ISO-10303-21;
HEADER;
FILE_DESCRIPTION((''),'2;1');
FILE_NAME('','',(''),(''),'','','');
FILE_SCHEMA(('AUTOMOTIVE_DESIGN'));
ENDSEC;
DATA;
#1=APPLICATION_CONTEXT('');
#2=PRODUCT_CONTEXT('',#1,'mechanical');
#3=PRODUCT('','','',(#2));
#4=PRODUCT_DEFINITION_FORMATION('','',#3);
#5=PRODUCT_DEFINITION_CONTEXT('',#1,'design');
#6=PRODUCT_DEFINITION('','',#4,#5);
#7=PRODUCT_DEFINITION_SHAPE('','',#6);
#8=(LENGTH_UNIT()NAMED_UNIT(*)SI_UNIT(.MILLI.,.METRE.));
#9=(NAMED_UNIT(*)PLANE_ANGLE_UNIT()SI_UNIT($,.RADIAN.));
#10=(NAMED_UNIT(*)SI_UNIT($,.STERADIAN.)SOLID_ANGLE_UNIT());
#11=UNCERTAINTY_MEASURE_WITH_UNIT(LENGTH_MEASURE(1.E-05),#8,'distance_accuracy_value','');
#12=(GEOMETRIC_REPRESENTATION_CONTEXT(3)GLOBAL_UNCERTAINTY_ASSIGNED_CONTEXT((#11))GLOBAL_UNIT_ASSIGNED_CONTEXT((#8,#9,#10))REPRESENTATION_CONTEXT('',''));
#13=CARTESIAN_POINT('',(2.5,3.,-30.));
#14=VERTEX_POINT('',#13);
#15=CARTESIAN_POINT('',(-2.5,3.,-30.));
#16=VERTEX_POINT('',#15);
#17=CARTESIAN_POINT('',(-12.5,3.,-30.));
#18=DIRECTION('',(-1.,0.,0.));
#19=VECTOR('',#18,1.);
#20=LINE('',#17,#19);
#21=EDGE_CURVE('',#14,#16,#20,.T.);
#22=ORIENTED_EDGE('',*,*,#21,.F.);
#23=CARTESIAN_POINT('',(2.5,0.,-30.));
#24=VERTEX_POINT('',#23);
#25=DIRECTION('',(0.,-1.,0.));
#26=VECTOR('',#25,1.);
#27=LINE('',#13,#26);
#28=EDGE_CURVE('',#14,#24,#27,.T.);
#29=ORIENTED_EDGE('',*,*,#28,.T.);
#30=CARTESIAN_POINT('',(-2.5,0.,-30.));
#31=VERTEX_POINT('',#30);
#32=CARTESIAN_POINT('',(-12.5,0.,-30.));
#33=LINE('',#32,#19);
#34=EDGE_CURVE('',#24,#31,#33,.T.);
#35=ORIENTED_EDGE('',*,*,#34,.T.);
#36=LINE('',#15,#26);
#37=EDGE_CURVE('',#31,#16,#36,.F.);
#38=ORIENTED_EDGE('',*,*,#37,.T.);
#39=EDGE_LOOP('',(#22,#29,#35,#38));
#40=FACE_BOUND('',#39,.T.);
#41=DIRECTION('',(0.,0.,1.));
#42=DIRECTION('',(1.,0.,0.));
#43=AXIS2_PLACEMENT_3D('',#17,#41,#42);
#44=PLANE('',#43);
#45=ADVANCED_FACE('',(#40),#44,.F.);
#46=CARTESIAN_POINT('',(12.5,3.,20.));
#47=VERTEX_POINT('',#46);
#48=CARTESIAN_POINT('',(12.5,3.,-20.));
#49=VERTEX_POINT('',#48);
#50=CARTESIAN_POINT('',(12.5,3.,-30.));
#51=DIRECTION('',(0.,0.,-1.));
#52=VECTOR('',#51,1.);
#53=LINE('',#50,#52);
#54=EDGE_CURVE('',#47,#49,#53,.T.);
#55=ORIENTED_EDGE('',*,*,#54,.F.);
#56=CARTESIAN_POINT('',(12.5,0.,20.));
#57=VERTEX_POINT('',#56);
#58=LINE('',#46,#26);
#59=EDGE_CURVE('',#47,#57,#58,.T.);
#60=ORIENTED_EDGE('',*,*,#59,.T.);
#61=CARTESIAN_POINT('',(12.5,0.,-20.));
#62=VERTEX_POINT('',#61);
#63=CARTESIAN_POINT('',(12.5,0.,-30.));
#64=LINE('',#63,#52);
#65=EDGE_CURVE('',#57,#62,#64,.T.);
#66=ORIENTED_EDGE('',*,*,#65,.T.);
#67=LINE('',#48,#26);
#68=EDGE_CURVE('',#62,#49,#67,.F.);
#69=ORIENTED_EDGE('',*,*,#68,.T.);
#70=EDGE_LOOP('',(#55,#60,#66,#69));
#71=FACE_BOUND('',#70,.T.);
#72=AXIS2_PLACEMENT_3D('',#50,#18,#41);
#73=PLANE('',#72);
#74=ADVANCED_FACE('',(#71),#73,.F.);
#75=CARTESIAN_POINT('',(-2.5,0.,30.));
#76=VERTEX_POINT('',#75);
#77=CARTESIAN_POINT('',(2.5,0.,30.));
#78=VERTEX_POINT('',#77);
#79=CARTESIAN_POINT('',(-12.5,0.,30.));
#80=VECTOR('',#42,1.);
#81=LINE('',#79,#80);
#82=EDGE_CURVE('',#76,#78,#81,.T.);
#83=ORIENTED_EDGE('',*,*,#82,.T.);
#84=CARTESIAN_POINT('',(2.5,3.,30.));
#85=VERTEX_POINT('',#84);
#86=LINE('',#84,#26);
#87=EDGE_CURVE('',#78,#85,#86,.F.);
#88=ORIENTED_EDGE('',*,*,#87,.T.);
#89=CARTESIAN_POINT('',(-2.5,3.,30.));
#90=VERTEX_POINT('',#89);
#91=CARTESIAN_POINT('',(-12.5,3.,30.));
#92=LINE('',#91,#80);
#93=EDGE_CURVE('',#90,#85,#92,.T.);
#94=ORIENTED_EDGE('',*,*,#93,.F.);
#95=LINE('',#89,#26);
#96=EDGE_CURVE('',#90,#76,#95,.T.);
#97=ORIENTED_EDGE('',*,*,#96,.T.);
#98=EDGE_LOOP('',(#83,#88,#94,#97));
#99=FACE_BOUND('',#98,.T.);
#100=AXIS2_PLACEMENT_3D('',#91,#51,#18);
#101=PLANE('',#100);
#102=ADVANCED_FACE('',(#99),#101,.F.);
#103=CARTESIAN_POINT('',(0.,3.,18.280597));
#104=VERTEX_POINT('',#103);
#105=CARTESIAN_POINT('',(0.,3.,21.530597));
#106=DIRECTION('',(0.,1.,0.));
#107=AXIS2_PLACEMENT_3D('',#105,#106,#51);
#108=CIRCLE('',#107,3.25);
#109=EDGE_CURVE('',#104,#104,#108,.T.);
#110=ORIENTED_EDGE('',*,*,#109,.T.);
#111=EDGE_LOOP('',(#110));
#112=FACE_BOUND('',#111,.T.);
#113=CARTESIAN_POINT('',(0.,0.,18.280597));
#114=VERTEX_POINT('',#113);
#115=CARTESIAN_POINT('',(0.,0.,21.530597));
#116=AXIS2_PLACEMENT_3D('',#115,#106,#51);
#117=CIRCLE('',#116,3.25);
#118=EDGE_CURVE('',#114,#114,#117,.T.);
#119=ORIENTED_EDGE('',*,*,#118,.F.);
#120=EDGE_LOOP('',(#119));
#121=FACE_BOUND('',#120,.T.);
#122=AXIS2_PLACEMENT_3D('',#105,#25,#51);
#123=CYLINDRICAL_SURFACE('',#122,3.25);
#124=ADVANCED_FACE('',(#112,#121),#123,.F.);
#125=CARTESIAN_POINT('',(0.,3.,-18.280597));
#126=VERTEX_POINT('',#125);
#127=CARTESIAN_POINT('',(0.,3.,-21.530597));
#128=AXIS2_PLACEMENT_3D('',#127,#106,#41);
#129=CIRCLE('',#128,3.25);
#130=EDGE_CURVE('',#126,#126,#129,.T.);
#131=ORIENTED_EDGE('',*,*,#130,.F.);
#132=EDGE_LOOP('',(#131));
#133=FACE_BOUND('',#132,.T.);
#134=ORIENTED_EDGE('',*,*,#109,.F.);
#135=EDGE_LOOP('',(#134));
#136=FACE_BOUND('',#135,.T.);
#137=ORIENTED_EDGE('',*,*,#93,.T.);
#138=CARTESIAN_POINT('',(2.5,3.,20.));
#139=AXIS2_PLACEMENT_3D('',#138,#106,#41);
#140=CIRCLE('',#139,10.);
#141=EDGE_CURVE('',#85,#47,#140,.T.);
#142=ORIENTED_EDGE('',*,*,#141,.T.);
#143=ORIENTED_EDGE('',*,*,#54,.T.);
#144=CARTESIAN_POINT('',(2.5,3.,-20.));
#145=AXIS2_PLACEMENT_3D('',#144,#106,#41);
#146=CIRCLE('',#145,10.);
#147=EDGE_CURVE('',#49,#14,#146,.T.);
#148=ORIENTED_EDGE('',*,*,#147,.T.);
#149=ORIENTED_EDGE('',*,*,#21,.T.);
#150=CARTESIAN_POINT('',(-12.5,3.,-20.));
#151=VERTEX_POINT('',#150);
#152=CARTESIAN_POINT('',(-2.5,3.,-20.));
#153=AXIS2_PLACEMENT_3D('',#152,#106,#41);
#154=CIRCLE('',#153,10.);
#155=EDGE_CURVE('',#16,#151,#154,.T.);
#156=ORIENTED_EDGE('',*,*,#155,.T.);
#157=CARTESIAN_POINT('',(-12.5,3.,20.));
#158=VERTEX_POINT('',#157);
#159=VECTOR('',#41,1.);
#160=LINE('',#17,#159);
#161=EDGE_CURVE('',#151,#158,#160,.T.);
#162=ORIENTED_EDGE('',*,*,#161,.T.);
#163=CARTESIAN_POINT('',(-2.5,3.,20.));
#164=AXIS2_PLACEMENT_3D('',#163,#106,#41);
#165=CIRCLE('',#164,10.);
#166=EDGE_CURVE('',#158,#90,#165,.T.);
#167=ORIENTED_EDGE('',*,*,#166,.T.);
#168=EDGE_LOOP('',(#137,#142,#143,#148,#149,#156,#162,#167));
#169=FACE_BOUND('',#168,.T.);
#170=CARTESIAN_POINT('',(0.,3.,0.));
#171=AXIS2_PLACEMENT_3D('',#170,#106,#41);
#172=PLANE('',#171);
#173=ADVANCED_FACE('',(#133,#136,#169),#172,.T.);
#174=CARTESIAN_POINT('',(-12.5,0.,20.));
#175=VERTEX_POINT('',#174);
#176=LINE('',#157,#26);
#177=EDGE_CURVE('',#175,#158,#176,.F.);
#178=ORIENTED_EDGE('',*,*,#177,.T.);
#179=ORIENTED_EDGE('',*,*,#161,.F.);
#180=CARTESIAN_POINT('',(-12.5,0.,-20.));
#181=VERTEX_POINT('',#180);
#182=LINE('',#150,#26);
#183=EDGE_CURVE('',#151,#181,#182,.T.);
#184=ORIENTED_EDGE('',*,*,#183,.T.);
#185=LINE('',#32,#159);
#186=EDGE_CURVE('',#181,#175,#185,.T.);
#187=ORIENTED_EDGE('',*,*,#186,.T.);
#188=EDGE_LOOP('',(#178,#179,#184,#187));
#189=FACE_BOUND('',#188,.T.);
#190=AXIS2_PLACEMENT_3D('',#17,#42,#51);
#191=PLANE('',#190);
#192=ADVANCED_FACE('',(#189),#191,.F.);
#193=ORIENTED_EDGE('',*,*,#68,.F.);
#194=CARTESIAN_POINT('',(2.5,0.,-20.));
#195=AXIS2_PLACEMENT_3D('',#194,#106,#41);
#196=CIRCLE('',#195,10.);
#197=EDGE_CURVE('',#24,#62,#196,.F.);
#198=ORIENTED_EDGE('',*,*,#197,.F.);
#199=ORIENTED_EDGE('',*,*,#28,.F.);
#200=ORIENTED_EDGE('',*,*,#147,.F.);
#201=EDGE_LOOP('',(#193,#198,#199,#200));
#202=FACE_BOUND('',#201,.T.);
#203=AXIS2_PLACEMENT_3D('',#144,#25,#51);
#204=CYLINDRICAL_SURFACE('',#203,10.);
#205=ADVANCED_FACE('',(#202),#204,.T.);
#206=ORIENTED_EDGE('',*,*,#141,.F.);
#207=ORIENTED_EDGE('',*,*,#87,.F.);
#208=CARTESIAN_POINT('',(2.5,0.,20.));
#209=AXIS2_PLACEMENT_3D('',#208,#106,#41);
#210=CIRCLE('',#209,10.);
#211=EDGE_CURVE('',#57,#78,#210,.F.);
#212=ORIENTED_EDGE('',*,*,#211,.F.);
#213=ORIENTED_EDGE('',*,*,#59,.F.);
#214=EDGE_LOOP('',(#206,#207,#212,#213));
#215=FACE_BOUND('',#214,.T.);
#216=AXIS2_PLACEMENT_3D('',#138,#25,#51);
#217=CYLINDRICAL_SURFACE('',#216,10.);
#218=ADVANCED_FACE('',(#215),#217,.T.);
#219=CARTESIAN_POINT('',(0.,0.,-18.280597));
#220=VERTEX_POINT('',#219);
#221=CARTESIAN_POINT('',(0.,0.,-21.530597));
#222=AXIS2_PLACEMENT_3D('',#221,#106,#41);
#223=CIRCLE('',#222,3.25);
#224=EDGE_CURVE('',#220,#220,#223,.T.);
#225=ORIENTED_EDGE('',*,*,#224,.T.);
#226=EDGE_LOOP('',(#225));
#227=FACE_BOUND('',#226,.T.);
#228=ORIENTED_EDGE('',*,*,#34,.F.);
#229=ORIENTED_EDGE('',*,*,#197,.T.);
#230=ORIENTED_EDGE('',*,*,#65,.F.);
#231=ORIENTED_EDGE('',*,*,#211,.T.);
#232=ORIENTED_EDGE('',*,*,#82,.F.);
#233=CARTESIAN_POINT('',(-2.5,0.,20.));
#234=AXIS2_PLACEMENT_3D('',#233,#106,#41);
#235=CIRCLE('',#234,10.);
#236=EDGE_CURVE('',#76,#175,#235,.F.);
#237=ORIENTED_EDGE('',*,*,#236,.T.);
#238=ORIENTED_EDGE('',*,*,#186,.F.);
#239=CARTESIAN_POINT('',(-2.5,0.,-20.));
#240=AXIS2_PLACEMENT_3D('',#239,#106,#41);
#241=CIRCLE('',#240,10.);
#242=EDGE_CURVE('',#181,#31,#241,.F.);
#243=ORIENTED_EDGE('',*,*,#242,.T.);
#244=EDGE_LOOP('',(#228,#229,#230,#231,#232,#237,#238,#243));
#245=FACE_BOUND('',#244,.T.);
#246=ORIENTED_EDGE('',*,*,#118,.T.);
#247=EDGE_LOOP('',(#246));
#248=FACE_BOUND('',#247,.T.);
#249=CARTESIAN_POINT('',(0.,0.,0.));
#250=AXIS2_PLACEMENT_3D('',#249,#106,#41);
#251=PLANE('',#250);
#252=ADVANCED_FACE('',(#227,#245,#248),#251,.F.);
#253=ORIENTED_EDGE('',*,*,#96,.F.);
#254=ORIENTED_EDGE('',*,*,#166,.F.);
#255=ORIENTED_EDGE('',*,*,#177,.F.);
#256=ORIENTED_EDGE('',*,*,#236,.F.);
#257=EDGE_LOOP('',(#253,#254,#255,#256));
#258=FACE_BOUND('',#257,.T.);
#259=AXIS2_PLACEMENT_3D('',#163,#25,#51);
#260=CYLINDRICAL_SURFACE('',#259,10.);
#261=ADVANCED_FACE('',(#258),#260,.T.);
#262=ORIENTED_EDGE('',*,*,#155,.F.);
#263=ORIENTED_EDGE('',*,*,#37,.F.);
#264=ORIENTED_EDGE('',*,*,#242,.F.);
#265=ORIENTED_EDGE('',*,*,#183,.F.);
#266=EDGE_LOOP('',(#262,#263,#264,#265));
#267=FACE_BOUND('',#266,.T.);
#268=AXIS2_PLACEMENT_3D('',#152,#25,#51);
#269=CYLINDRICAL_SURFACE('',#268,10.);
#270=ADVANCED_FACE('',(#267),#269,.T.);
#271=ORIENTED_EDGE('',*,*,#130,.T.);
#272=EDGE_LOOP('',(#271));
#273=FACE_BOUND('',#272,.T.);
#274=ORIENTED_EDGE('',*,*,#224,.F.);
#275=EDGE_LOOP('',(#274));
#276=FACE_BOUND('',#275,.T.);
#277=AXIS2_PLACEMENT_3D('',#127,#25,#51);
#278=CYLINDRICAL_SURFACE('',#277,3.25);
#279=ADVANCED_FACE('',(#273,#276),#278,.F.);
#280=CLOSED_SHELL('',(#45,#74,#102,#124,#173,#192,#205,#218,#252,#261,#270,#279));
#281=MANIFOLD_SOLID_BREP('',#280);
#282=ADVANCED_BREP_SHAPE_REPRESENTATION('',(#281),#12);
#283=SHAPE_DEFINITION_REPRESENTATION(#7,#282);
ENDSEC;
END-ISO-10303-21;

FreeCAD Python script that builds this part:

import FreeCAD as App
import Part
import Sketcher


def edges_at(feature, points):
    """Names of the edges that pass closest to the given points."""
    edges = feature.Shape.Edges
    near = lambda p: min(range(len(edges)), key=lambda i: edges[i].distToShape(Part.Vertex(*p))[0])
    return sorted({f"Edge{near(p) + 1}" for p in points})

doc = App.newDocument("Part")
body = doc.addObject("PartDesign::Body", "Body")

# Sketch on XZ plane
sketch1 = body.newObject("Sketcher::SketchObject", "Sketch")
sketch1.AttachmentSupport = (doc.getObject("XZ_Plane"), [""])
sketch1.MapMode = "FlatFace"
sketch1.addGeometry([
    Part.LineSegment(App.Vector(-12.5, -30, 0), App.Vector(-12.5, 30, 0)),  # 0
    Part.LineSegment(App.Vector(-12.5, 30, 0), App.Vector(12.5, 30, 0)),  # 1
    Part.LineSegment(App.Vector(12.5, 30, 0), App.Vector(12.5, -30, 0)),  # 2
    Part.LineSegment(App.Vector(12.5, -30, 0), App.Vector(-12.5, -30, 0)),  # 3
    Part.Circle(App.Vector(0, 21.530597, 0), App.Vector(0, 0, 1), 3.25),  # 4
    Part.Circle(App.Vector(0, -21.530597, 0), App.Vector(0, 0, 1), 3.25),  # 5
], False)
sketch1.addConstraint([
    Sketcher.Constraint("Coincident", 0, 2, 1, 1),
    Sketcher.Constraint("Coincident", 1, 2, 2, 1),
    Sketcher.Constraint("Coincident", 2, 2, 3, 1),
    Sketcher.Constraint("Coincident", 3, 2, 0, 1),
    Sketcher.Constraint("Vertical", 0),
    Sketcher.Constraint("Horizontal", 1),
    Sketcher.Constraint("Vertical", 2),
    Sketcher.Constraint("Horizontal", 3),
    Sketcher.Constraint("Equal", 4, 5),
    Sketcher.Constraint("Symmetric", 4, 3, 5, 3, -1, 1),
    Sketcher.Constraint("Symmetric", 0, 2, 2, 2, -1, 1),
    Sketcher.Constraint("PointOnObject", 4, 3, -2),
    Sketcher.Constraint("Diameter", 4, 6.5),
    Sketcher.Constraint("DistanceX", 1, 1, 1, 2, 25.0),
    Sketcher.Constraint("DistanceY", 0, 1, 0, 2, 60.0),
    Sketcher.Constraint("DistanceY", -1, 1, 4, 3, 21.530597),
])
pad1 = body.newObject("PartDesign::Pad", "Pad")
pad1.Profile = sketch1
pad1.Length = 3
pad1.Reversed = True
doc.recompute()

fillet = body.newObject("PartDesign::Fillet", "Fillet")
fillet.Base = (pad1, edges_at(pad1, [
    (12.5, 1.5, 30),
    (-12.5, 1.5, 30),
    (-12.5, 1.5, -30),
    (12.5, 1.5, -30),
]))
fillet.Radius = 10

doc.recompute()
